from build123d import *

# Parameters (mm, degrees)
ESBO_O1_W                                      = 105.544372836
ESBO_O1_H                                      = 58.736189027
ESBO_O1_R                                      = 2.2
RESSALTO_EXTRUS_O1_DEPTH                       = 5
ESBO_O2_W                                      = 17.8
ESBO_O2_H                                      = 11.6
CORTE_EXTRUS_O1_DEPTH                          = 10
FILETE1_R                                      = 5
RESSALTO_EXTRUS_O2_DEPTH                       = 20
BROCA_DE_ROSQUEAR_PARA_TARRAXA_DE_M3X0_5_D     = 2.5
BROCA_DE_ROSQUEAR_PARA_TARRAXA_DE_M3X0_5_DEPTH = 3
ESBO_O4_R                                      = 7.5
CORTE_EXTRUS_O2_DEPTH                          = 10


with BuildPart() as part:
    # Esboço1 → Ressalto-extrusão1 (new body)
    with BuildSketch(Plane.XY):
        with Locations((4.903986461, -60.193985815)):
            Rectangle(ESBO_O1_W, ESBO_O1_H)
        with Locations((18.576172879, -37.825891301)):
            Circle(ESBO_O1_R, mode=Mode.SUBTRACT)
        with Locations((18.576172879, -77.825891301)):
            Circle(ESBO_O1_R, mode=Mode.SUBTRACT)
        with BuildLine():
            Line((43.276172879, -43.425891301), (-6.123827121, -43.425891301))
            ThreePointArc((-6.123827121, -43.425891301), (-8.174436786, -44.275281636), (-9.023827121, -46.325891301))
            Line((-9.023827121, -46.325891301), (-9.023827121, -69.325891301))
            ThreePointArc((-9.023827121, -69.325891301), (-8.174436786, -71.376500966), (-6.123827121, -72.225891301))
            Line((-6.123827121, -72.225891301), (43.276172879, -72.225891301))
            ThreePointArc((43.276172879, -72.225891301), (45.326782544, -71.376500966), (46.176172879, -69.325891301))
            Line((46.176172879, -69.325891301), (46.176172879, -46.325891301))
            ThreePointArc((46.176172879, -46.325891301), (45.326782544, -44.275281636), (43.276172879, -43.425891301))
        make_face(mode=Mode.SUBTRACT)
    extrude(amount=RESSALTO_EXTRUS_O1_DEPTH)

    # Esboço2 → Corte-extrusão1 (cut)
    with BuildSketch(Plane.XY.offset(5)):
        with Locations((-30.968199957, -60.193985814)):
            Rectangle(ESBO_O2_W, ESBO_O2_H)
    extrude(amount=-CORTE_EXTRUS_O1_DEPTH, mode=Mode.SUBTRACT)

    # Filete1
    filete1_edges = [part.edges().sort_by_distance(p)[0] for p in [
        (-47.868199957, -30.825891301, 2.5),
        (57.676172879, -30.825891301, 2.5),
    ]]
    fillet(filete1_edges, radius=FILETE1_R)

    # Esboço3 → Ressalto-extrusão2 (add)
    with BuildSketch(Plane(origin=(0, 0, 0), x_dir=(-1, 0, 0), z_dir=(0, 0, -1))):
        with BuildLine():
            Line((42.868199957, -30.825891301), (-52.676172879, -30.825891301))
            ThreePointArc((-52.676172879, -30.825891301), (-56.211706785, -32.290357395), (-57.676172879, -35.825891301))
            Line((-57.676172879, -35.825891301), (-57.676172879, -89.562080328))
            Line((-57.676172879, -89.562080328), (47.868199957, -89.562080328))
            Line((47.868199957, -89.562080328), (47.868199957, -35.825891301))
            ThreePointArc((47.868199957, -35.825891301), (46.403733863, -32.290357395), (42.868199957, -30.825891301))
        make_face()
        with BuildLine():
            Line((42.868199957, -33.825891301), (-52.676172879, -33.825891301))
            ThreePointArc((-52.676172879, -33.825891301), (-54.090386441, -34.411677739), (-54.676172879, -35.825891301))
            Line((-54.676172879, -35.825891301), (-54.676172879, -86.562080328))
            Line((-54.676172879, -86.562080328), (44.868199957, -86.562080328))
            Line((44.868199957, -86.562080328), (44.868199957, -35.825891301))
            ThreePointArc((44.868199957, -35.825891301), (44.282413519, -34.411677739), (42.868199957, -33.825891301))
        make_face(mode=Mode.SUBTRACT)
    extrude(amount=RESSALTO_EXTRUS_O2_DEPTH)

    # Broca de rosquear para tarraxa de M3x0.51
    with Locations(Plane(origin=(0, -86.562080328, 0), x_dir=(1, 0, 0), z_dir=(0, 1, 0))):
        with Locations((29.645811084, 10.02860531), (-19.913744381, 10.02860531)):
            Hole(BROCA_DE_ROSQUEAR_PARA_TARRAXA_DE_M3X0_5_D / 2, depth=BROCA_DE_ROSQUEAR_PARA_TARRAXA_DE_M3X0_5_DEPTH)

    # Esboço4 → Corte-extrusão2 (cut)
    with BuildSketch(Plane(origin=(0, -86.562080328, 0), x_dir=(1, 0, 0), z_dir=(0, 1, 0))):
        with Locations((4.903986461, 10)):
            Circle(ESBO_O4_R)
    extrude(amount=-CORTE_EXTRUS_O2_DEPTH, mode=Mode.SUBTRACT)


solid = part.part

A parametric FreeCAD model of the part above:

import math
import FreeCAD as App
import Part
import Sketcher


def edges_at(feature, points):
    """Names of the edges that pass closest to the given points."""
    edges = feature.Shape.Edges
    near = lambda p: min(range(len(edges)), key=lambda i: edges[i].distToShape(Part.Vertex(*p))[0])
    return sorted({f"Edge{near(p) + 1}" for p in points})


def add_polygon(sketch, points):
    """Adds a closed chain of lines whose ends are joined by coincident constraints."""
    first, n = sketch.GeometryCount, len(points)
    for a, b in zip(points, points[1:] + points[:1]):
        sketch.addGeometry(Part.LineSegment(App.Vector(*a, 0), App.Vector(*b, 0)), False)
    for i in range(n):
        sketch.addConstraint(Sketcher.Constraint("Coincident", first + i, 2, first + (i + 1) % n, 1))

doc = App.newDocument("Part")
body = doc.addObject("PartDesign::Body", "Body")

# Sketch on XY plane
sketch1 = body.newObject("Sketcher::SketchObject", "Sketch")
sketch1.AttachmentSupport = (doc.getObject("XY_Plane"), [""])
sketch1.MapMode = "FlatFace"
add_polygon(sketch1, [(-47.9, -30.8), (-47.9, -89.6), (57.7, -89.6), (57.7, -30.8)])  # lines 0-3
sketch1.addGeometry(Part.Circle(App.Vector(18.6, -77.8, 0), App.Vector(0, 0, 1), 2.2), False)  # 4
sketch1.addGeometry(Part.LineSegment(App.Vector(-6.1, -43.4, 0), App.Vector(43.3, -43.4, 0)), False)  # 5
sketch1.addGeometry(Part.ArcOfCircle(Part.Circle(App.Vector(43.3, -46.3, 0), App.Vector(0, 0, 1), 2.9), math.radians(0), math.radians(90)), False)  # 6
sketch1.addGeometry(Part.LineSegment(App.Vector(46.2, -46.3, 0), App.Vector(46.2, -69.3, 0)), False)  # 7
sketch1.addGeometry(Part.ArcOfCircle(Part.Circle(App.Vector(43.3, -69.3, 0), App.Vector(0, 0, 1), 2.9), math.radians(-90), math.radians(0)), False)  # 8
sketch1.addGeometry(Part.LineSegment(App.Vector(43.3, -72.2, 0), App.Vector(-6.1, -72.2, 0)), False)  # 9
sketch1.addGeometry(Part.ArcOfCircle(Part.Circle(App.Vector(-6.1, -69.3, 0), App.Vector(0, 0, 1), 2.9), math.radians(-180), math.radians(-90)), False)  # 10
sketch1.addGeometry(Part.LineSegment(App.Vector(-9, -69.3, 0), App.Vector(-9, -46.3, 0)), False)  # 11
sketch1.addGeometry(Part.ArcOfCircle(Part.Circle(App.Vector(-6.1, -46.3, 0), App.Vector(0, 0, 1), 2.9), math.radians(90), math.radians(180)), False)  # 12
sketch1.addGeometry(Part.Circle(App.Vector(18.6, -37.8, 0), App.Vector(0, 0, 1), 2.2), False)  # 13
sketch1.addConstraint(Sketcher.Constraint("Tangent", 5, 2, 6, 2))
sketch1.addConstraint(Sketcher.Constraint("Tangent", 6, 1, 7, 1))
sketch1.addConstraint(Sketcher.Constraint("Tangent", 7, 2, 8, 2))
sketch1.addConstraint(Sketcher.Constraint("Tangent", 8, 1, 9, 1))
sketch1.addConstraint(Sketcher.Constraint("Tangent", 9, 2, 10, 2))
sketch1.addConstraint(Sketcher.Constraint("Tangent", 10, 1, 11, 1))
sketch1.addConstraint(Sketcher.Constraint("Tangent", 11, 2, 12, 2))
sketch1.addConstraint(Sketcher.Constraint("Tangent", 12, 1, 5, 1))
sketch1.addConstraint(Sketcher.Constraint("Vertical", 0))
sketch1.addConstraint(Sketcher.Constraint("Horizontal", 1))
sketch1.addConstraint(Sketcher.Constraint("Vertical", 2))
sketch1.addConstraint(Sketcher.Constraint("Horizontal", 3))
sketch1.addConstraint(Sketcher.Constraint("Horizontal", 5))
sketch1.addConstraint(Sketcher.Constraint("Vertical", 7))
sketch1.addConstraint(Sketcher.Constraint("Horizontal", 9))
sketch1.addConstraint(Sketcher.Constraint("Vertical", 11))
sketch1.addConstraint(Sketcher.Constraint("Equal", 6, 8))
sketch1.addConstraint(Sketcher.Constraint("Equal", 8, 10))
sketch1.addConstraint(Sketcher.Constraint("Equal", 10, 12))
sketch1.addConstraint(Sketcher.Constraint("Equal", 4, 13))
sketch1.addConstraint(Sketcher.Constraint("Vertical", 4, 3, 13, 3))
sketch1.addConstraint(Sketcher.Constraint("Diameter", 4, 4.4))
sketch1.addConstraint(Sketcher.Constraint("Radius", 6, 2.9))
sketch1.addConstraint(Sketcher.Constraint("DistanceY", 7, 2, 7, 1, 23.0))
sketch1.addConstraint(Sketcher.Constraint("DistanceX", 5, 1, 5, 2, 49.4))
sketch1.addConstraint(Sketcher.Constraint("DistanceY", 4, 3, 13, 3, 40.0))
sketch1.addConstraint(Sketcher.Constraint("DistanceY", 13, 3, 2, 2, 7.0))
sketch1.addConstraint(Sketcher.Constraint("DistanceX", 4, 3, 6, 3, 24.7))
sketch1.addConstraint(Sketcher.Constraint("DistanceY", 4, 3, 6, 3, 31.5))
sketch1.addConstraint(Sketcher.Constraint("DistanceX", 8, 3, 1, 2, 14.4))
sketch1.addConstraint(Sketcher.Constraint("DistanceY", 0, 2, 0, 1, 58.736189))
sketch1.addConstraint(Sketcher.Constraint("DistanceX", 0, 2, -1, 1, 47.8682))
sketch1.addConstraint(Sketcher.Constraint("DistanceX", 1, 1, 1, 2, 105.544373))
sketch1.addConstraint(Sketcher.Constraint("DistanceY", 4, 3, -1, 1, 77.825891))
pad1 = body.newObject("PartDesign::Pad", "Pad")
pad1.Profile = sketch1
pad1.Length = 5

# Sketch on XY plane
sketch2 = body.newObject("Sketcher::SketchObject", "Sketch001")
sketch2.AttachmentSupport = (doc.getObject("XY_Plane"), [""])
sketch2.MapMode = "FlatFace"
sketch2.AttachmentOffset = App.Placement(App.Vector(0, 0, 5), App.Rotation())
add_polygon(sketch2, [(-40, -54), (-40, -66), (-22, -66), (-22, -54)])  # lines 0-3
sketch2.addConstraint(Sketcher.Constraint("Vertical", 0))
sketch2.addConstraint(Sketcher.Constraint("Horizontal", 1))
sketch2.addConstraint(Sketcher.Constraint("Vertical", 2))
sketch2.addConstraint(Sketcher.Constraint("Horizontal", 3))
sketch2.addConstraint(Sketcher.Constraint("DistanceX", 1, 1, 1, 2, 17.8))
sketch2.addConstraint(Sketcher.Constraint("DistanceY", 0, 2, 0, 1, 11.6))
sketch2.addConstraint(Sketcher.Constraint("DistanceX", 0, 2, -1, 1, 39.8682))
sketch2.addConstraint(Sketcher.Constraint("DistanceY", 0, 2, -1, 1, 65.993986))
pocket1 = body.newObject("PartDesign::Pocket", "Pocket")
pocket1.Profile = sketch2
pocket1.Length = 10
doc.recompute()

fillet = body.newObject("PartDesign::Fillet", "Fillet")
fillet.Base = (pocket1, edges_at(pocket1, [(-47.868, -30.826, 2.5), (57.676, -30.826, 2.5)]))
fillet.Radius = 5

# Sketch on XY plane
sketch3 = body.newObject("Sketcher::SketchObject", "Sketch002")
sketch3.AttachmentSupport = (doc.getObject("XY_Plane"), [""])
sketch3.MapMode = "FlatFace"
sketch3.addGeometry(Part.LineSegment(App.Vector(-42.9, -30.8, 0), App.Vector(52.7, -30.8, 0)), False)
sketch3.addGeometry(Part.ArcOfCircle(Part.Circle(App.Vector(52.7, -35.8, 0), App.Vector(0, 0, 1), 5), math.radians(0), math.radians(90)), False)
sketch3.addGeometry(Part.LineSegment(App.Vector(57.7, -35.8, 0), App.Vector(57.7, -89.6, 0)), False)
sketch3.addGeometry(Part.LineSegment(App.Vector(57.7, -89.6, 0), App.Vector(-47.9, -89.6, 0)), False)
sketch3.addGeometry(Part.LineSegment(App.Vector(-47.9, -89.6, 0), App.Vector(-47.9, -35.8, 0)), False)
sketch3.addGeometry(Part.ArcOfCircle(Part.Circle(App.Vector(-42.9, -35.8, 0), App.Vector(0, 0, 1), 5), math.radians(90), math.radians(180)), False)
sketch3.addGeometry(Part.LineSegment(App.Vector(52.7, -33.8, 0), App.Vector(-42.9, -33.8, 0)), False)
sketch3.addGeometry(Part.ArcOfCircle(Part.Circle(App.Vector(-42.9, -35.8, 0), App.Vector(0, 0, 1), 2), math.radians(90), math.radians(180)), False)
sketch3.addGeometry(Part.LineSegment(App.Vector(-44.9, -35.8, 0), App.Vector(-44.9, -86.6, 0)), False)
sketch3.addGeometry(Part.LineSegment(App.Vector(-44.9, -86.6, 0), App.Vector(54.7, -86.6, 0)), False)
sketch3.addGeometry(Part.LineSegment(App.Vector(54.7, -86.6, 0), App.Vector(54.7, -35.8, 0)), False)
sketch3.addGeometry(Part.ArcOfCircle(Part.Circle(App.Vector(52.7, -35.8, 0), App.Vector(0, 0, 1), 2), math.radians(0), math.radians(90)), False)
sketch3.addConstraint(Sketcher.Constraint("Tangent", 0, 2, 1, 2))
sketch3.addConstraint(Sketcher.Constraint("Tangent", 1, 1, 2, 1))
sketch3.addConstraint(Sketcher.Constraint("Coincident", 2, 2, 3, 1))
sketch3.addConstraint(Sketcher.Constraint("Coincident", 3, 2, 4, 1))
sketch3.addConstraint(Sketcher.Constraint("Tangent", 4, 2, 5, 2))
sketch3.addConstraint(Sketcher.Constraint("Tangent", 5, 1, 0, 1))
sketch3.addConstraint(Sketcher.Constraint("Tangent", 6, 2, 7, 1))
sketch3.addConstraint(Sketcher.Constraint("Tangent", 7, 2, 8, 1))
sketch3.addConstraint(Sketcher.Constraint("Coincident", 8, 2, 9, 1))
sketch3.addConstraint(Sketcher.Constraint("Coincident", 9, 2, 10, 1))
sketch3.addConstraint(Sketcher.Constraint("Tangent", 10, 2, 11, 1))
sketch3.addConstraint(Sketcher.Constraint("Tangent", 11, 2, 6, 1))
sketch3.addConstraint(Sketcher.Constraint("Horizontal", 0))
sketch3.addConstraint(Sketcher.Constraint("Vertical", 2))
sketch3.addConstraint(Sketcher.Constraint("Horizontal", 3))
sketch3.addConstraint(Sketcher.Constraint("Vertical", 4))
sketch3.addConstraint(Sketcher.Constraint("Horizontal", 6))
sketch3.addConstraint(Sketcher.Constraint("Vertical", 8))
sketch3.addConstraint(Sketcher.Constraint("Horizontal", 9))
sketch3.addConstraint(Sketcher.Constraint("Vertical", 10))
sketch3.addConstraint(Sketcher.Constraint("Coincident", 7, 3, 5, 3))
sketch3.addConstraint(Sketcher.Constraint("Coincident", 11, 3, 1, 3))
sketch3.addConstraint(Sketcher.Constraint("Equal", 1, 5))
sketch3.addConstraint(Sketcher.Constraint("Radius", 1, 5.0))
sketch3.addConstraint(Sketcher.Constraint("Radius", 7, 2.0))
sketch3.addConstraint(Sketcher.Constraint("DistanceY", 3, 2, 8, 2, 3.0))
sketch3.addConstraint(Sketcher.Constraint("DistanceY", 2, 2, 2, 1, 53.736189))
sketch3.addConstraint(Sketcher.Constraint("DistanceX", 5, 3, -1, 1, 42.8682))
sketch3.addConstraint(Sketcher.Constraint("DistanceX", 0, 1, 0, 2, 95.544373))
sketch3.addConstraint(Sketcher.Constraint("DistanceY", 1, 3, -1, 1, 35.825891))
pad2 = body.newObject("PartDesign::Pad", "Pad001")
pad2.Profile = sketch3
pad2.Length = 20
pad2.Reversed = True

# Sketch on XZ plane
sketch4 = body.newObject("Sketcher::SketchObject", "Sketch003")
sketch4.AttachmentSupport = (doc.getObject("XZ_Plane"), [""])
sketch4.MapMode = "FlatFace"
sketch4.AttachmentOffset = App.Placement(App.Vector(0, 0, 86.56208), App.Rotation())
sketch4.addGeometry(Part.Circle(App.Vector(29.6, -10, 0), App.Vector(0, 0, 1), 1.2), False)
sketch4.addGeometry(Part.Circle(App.Vector(-19.9, -10, 0), App.Vector(0, 0, 1), 1.2), False)
sketch4.addConstraint(Sketcher.Constraint("Equal", 0, 1))
sketch4.addConstraint(Sketcher.Constraint("Horizontal", 0, 3, 1, 3))
sketch4.addConstraint(Sketcher.Constraint("Diameter", 0, 2.5))
sketch4.addConstraint(Sketcher.Constraint("DistanceX", -1, 1, 0, 3, 29.645811))
sketch4.addConstraint(Sketcher.Constraint("DistanceY", 0, 3, -1, 1, 10.028605))
sketch4.addConstraint(Sketcher.Constraint("DistanceX", 1, 3, -1, 1, 19.913744))
doc.recompute()
hole = body.newObject("PartDesign::Hole", "Hole")
hole.Profile = sketch4
hole.ThreadType = "None"
hole.Diameter = 2.5
hole.DepthType = "Dimension"
hole.Depth = 3
hole.DrillPoint = "Flat"
hole.Reversed = True

# Sketch on XZ plane
sketch5 = body.newObject("Sketcher::SketchObject", "Sketch004")
sketch5.AttachmentSupport = (doc.getObject("XZ_Plane"), [""])
sketch5.MapMode = "FlatFace"
sketch5.AttachmentOffset = App.Placement(App.Vector(0, 0, 86.56208), App.Rotation())
sketch5.addGeometry(Part.Circle(App.Vector(5, -10, 0), App.Vector(0, 0, 1), 8), False)
sketch5.addConstraint(Sketcher.Constraint("Diameter", 0, 15.0))
sketch5.addConstraint(Sketcher.Constraint("DistanceY", 0, 3, -1, 1, 10.0))
sketch5.addConstraint(Sketcher.Constraint("DistanceX", -1, 1, 0, 3, 4.903986))
pocket2 = body.newObject("PartDesign::Pocket", "Pocket001")
pocket2.Profile = sketch5
pocket2.Length = 10
pocket2.Reversed = True

doc.recompute()
